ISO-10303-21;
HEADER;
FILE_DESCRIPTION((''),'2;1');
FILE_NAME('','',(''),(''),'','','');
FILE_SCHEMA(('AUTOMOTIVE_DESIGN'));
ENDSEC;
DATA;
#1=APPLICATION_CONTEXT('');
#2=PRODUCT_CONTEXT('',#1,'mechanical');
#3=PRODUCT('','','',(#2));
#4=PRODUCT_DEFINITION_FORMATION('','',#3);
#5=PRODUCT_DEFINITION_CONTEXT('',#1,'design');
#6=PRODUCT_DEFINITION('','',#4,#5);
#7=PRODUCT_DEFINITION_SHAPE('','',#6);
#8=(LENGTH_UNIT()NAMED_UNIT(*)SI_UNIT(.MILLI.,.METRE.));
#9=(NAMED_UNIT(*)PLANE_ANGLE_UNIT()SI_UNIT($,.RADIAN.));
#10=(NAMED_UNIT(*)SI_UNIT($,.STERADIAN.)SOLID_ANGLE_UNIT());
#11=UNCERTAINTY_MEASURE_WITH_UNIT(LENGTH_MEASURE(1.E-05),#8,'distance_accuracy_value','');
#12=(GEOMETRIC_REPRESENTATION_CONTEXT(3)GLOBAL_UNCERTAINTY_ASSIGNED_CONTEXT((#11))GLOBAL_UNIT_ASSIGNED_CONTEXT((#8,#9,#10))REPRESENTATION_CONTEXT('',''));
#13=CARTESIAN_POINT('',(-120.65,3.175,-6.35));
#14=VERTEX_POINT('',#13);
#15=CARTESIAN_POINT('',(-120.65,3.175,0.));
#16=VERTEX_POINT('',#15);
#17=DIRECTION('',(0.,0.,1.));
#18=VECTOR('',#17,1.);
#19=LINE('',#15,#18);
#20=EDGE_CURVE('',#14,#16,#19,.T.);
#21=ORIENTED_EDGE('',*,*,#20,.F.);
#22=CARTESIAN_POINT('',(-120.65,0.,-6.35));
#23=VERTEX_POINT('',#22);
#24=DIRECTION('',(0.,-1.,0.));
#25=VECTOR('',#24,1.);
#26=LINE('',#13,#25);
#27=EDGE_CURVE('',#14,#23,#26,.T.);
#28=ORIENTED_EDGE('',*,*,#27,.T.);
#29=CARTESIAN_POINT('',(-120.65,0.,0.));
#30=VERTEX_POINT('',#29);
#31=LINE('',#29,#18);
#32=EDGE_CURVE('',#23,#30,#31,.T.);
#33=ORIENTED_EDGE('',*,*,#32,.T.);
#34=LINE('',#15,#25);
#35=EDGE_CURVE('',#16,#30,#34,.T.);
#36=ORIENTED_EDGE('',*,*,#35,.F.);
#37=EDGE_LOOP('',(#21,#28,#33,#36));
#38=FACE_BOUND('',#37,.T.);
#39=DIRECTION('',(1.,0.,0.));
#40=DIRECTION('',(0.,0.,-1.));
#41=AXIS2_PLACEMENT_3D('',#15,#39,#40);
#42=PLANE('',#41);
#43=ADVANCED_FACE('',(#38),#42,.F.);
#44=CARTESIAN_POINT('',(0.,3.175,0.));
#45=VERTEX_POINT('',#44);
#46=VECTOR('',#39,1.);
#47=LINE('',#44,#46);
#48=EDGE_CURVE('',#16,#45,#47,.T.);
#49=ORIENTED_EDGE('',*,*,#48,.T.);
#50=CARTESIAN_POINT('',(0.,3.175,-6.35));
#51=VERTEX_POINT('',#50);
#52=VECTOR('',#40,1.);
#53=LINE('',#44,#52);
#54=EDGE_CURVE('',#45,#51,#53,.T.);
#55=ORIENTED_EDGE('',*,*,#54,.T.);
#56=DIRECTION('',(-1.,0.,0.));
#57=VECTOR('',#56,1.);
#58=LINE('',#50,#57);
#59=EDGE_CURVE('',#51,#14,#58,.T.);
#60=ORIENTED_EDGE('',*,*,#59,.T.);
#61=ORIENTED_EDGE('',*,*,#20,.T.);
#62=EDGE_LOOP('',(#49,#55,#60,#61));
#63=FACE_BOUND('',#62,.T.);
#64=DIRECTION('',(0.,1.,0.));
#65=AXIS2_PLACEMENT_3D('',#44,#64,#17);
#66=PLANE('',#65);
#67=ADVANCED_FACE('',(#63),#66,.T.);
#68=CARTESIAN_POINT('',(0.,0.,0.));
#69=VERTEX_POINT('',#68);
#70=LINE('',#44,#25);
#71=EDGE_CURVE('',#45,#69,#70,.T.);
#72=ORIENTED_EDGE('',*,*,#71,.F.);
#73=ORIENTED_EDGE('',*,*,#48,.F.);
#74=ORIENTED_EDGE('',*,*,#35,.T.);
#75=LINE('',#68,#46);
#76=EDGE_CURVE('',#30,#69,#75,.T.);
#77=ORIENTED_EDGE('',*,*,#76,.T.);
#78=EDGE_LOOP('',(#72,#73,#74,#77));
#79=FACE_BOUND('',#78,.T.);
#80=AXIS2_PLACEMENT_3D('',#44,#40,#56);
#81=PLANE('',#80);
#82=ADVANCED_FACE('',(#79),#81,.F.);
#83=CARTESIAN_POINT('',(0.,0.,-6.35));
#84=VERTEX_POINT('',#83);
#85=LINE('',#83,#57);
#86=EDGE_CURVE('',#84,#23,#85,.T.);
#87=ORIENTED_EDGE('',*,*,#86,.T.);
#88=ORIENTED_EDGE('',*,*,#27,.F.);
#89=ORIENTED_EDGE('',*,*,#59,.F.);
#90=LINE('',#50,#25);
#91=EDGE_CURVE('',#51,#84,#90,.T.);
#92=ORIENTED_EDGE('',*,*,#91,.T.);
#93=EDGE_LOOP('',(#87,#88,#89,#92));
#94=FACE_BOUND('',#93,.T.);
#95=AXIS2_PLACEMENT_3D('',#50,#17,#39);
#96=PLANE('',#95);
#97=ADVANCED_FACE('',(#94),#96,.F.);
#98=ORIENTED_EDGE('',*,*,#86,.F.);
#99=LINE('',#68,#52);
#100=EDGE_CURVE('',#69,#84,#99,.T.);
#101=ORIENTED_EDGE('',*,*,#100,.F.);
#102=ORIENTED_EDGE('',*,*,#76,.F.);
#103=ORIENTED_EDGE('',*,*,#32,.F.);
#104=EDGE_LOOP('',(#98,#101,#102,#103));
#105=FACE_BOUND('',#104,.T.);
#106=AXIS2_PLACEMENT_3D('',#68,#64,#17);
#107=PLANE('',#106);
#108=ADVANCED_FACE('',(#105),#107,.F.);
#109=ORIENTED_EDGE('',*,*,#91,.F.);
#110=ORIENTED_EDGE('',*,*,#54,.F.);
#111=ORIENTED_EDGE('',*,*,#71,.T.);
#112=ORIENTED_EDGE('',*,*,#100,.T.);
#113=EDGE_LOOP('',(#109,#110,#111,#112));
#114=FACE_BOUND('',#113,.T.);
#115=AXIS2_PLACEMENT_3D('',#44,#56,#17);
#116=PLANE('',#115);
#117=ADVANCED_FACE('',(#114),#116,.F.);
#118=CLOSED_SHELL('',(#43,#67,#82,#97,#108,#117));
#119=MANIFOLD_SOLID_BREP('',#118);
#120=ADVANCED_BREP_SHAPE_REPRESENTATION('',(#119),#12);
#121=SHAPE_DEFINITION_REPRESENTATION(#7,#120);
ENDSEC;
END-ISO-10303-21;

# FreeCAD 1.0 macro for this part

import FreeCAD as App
import Part
import Sketcher
Q = App.Units.Quantity


def add_polygon(sketch, points):
    """Adds a closed chain of lines whose ends are joined by coincident constraints."""
    first, n = sketch.GeometryCount, len(points)
    for a, b in zip(points, points[1:] + points[:1]):
        sketch.addGeometry(Part.LineSegment(App.Vector(*a, 0), App.Vector(*b, 0)), False)
    for i in range(n):
        sketch.addConstraint(Sketcher.Constraint("Coincident", first + i, 2, first + (i + 1) % n, 1))

doc = App.newDocument("Part")
body = doc.addObject("PartDesign::Body", "Body")

sketch1 = doc.addObject("Sketcher::SketchObject", "Sketch")
body.addObject(sketch1)
sketch1.AttachmentSupport = (doc.XZ_Plane, [""])
sketch1.MapMode = "FlatFace"
add_polygon(sketch1, [(-121, -6), (-121, 0), (0, 0), (0, -6)])
sketch1.addConstraint(Sketcher.Constraint("Vertical", 0))
sketch1.addConstraint(Sketcher.Constraint("Horizontal", 1))
sketch1.addConstraint(Sketcher.Constraint("Vertical", 2))
sketch1.addConstraint(Sketcher.Constraint("Horizontal", 3))
sketch1.addConstraint(Sketcher.Constraint("Coincident", 1, 2, -1, 1))
sketch1.addConstraint(Sketcher.Constraint("DistanceX", 1, 1, 1, 2, Q("4.75 in")))
sketch1.addConstraint(Sketcher.Constraint("DistanceY", 0, 1, 0, 2, Q("0.25 in")))
pad1 = doc.addObject("PartDesign::Pad", "Pad")
body.addObject(pad1)
pad1.Profile = sketch1
pad1.Length = Q("0.125 in")
pad1.Reversed = True

doc.recompute()
